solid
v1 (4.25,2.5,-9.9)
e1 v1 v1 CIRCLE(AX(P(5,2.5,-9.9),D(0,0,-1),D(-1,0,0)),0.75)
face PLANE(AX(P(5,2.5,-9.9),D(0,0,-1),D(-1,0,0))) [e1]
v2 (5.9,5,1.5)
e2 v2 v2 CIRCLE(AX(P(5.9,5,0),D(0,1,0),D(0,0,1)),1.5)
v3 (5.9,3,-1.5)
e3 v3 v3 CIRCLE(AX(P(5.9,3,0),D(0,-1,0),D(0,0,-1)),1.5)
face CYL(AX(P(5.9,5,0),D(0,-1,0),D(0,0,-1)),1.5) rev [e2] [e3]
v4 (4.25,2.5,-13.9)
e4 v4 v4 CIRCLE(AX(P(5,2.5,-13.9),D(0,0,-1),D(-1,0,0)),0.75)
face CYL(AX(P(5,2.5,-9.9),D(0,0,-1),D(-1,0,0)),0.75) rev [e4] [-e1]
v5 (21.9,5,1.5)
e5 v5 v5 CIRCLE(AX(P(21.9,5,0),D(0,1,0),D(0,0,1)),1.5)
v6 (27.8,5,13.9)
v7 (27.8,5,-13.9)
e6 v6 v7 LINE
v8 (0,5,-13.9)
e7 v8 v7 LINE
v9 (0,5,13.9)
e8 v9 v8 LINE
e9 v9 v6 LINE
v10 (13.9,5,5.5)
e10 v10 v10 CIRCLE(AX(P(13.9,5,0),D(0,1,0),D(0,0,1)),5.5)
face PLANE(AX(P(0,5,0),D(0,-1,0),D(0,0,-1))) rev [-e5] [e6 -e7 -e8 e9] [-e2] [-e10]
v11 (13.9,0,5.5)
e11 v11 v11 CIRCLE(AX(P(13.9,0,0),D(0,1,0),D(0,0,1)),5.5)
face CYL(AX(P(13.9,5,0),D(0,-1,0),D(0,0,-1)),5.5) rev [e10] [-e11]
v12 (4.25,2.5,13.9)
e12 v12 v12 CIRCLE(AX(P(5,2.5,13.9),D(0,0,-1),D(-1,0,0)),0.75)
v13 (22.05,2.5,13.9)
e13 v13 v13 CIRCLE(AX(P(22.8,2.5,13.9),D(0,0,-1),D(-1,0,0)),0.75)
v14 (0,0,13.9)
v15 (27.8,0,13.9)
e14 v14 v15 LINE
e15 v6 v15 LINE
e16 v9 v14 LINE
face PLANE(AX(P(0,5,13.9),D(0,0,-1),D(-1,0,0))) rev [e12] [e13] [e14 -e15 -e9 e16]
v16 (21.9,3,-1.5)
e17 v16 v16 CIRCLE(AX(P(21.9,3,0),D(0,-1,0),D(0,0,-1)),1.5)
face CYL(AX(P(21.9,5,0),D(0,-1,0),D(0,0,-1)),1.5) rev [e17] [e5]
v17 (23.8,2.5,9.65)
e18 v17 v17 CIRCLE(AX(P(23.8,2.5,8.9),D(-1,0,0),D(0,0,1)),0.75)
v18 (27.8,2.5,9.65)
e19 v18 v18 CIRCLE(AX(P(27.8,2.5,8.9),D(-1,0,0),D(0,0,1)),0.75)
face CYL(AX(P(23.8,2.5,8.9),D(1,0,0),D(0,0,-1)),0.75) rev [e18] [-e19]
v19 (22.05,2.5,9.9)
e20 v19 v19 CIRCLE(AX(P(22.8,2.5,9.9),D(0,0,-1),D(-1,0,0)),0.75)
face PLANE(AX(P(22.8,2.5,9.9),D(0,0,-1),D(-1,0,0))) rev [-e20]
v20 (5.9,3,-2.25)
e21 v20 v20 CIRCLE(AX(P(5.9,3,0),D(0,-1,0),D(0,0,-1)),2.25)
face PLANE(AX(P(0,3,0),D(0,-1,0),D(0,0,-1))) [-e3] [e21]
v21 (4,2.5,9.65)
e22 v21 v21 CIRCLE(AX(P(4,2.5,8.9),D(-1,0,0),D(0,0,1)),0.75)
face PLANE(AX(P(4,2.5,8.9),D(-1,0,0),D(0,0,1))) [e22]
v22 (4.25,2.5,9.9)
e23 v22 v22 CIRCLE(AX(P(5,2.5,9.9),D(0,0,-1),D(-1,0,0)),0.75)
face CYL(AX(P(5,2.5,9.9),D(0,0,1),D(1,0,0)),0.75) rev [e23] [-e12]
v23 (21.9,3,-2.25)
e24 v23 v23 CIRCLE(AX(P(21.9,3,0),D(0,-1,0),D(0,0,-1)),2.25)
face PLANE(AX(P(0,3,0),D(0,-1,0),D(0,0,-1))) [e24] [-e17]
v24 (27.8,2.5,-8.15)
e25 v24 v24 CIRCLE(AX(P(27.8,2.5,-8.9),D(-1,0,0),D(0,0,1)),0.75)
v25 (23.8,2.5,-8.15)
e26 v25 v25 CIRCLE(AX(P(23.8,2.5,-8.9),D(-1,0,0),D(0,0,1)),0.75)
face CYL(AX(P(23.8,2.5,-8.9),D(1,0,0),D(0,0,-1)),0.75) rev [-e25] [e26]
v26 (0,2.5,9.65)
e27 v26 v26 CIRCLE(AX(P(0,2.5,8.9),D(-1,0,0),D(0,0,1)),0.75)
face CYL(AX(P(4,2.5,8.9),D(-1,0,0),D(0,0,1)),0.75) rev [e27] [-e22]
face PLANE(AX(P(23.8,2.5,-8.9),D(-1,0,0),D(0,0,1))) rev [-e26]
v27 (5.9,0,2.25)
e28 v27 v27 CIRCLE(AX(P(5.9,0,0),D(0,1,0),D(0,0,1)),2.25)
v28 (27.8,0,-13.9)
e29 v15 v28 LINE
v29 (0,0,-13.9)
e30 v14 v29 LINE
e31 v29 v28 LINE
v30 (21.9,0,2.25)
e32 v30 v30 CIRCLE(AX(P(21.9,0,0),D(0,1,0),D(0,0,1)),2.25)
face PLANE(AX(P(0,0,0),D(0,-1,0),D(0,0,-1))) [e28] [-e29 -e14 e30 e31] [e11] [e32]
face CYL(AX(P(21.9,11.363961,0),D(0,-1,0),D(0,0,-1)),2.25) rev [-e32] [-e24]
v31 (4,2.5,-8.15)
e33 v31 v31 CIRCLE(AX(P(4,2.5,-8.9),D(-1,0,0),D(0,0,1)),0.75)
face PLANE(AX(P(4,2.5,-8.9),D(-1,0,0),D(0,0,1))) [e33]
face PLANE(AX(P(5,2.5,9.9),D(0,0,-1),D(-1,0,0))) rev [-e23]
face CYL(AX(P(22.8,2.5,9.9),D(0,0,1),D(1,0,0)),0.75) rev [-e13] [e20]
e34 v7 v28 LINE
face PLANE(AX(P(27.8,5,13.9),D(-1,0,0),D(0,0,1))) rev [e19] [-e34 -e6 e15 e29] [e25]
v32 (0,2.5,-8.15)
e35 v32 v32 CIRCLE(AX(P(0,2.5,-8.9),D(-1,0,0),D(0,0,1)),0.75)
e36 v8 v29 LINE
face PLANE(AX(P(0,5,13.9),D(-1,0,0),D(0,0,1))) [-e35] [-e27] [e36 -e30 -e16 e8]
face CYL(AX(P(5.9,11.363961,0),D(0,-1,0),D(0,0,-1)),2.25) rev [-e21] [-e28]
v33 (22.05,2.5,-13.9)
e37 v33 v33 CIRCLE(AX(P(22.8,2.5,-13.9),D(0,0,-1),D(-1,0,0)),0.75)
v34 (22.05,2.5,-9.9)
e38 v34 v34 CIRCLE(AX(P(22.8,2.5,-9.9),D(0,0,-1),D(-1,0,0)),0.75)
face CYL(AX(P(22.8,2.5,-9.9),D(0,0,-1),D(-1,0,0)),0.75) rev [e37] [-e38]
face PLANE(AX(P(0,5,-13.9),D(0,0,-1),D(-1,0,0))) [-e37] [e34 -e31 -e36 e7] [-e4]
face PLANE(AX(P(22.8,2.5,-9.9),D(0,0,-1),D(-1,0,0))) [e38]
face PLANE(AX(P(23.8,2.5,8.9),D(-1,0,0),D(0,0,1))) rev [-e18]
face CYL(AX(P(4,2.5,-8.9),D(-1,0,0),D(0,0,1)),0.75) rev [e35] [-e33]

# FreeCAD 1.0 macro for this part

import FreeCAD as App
import Part
import Sketcher

V = App.Vector
Q = App.Units.Quantity

doc = App.newDocument("Part")
body = doc.addObject("PartDesign::Body", "Body")

# Sketch on XZ plane
sketch1 = body.newObject("Sketcher::SketchObject", "Sketch")
sketch1.AttachmentSupport = (doc.getObject("XZ_Plane"), [""])
sketch1.MapMode = "FlatFace"
sketch1.addGeometry([
    Part.LineSegment(V(0, -13.9, 0), V(0, 13.9, 0)),  # 0
    Part.LineSegment(V(0, 13.9, 0), V(27.8, 13.9, 0)),  # 1
    Part.LineSegment(V(27.8, 13.9, 0), V(27.8, -13.9, 0)),  # 2
    Part.LineSegment(V(27.8, -13.9, 0), V(0, -13.9, 0)),  # 3
    Part.Circle(V(13.9, 0, 0), V(0, 0, 1), 5.5),  # 4
], False)
sketch1.addConstraint([
    Sketcher.Constraint("Coincident", 0, 2, 1, 1),
    Sketcher.Constraint("Coincident", 1, 2, 2, 1),
    Sketcher.Constraint("Coincident", 2, 2, 3, 1),
    Sketcher.Constraint("Coincident", 3, 2, 0, 1),
    Sketcher.Constraint("Vertical", 0),
    Sketcher.Constraint("Horizontal", 1),
    Sketcher.Constraint("Vertical", 2),
    Sketcher.Constraint("Horizontal", 3),
    Sketcher.Constraint("Symmetric", 0, 2, 3, 2, -1, 1),
    Sketcher.Constraint("PointOnObject", 4, 3, -1),
    Sketcher.Constraint("Equal", 3, 0),
    Sketcher.Constraint("Diameter", 4, Q("11 mm")),
    Sketcher.Constraint("DistanceX", 1, 1, 1, 2, Q("27.8 mm")),
    Sketcher.Constraint("DistanceX", -1, 1, 4, 3, Q("13.9 mm")),
])
pad1 = body.newObject("PartDesign::Pad", "Pad")
pad1.Profile = sketch1
pad1.Length = 5
pad1.Reversed = True

# Sketch on XZ plane
sketch2 = body.newObject("Sketcher::SketchObject", "Sketch001")
sketch2.AttachmentSupport = (doc.getObject("XZ_Plane"), [""])
sketch2.MapMode = "FlatFace"
sketch2.addGeometry([
    Part.Circle(V(5.9, 0, 0), V(0, 0, 1), 1.5),
    Part.Circle(V(21.9, 0, 0), V(0, 0, 1), 1.5),
], False)
sketch2.addConstraint([
    Sketcher.Constraint("Equal", 0, 1),
    Sketcher.Constraint("PointOnObject", 0, 3, -1),
    Sketcher.Constraint("PointOnObject", 1, 3, -1),
    Sketcher.Constraint("Diameter", 0, Q("3 mm")),
    Sketcher.Constraint("DistanceX", 0, 3, 1, 3, Q("16 mm")),
    Sketcher.Constraint("DistanceX", -1, 1, 0, 3, Q("5.9 mm")),
])
pocket1 = body.newObject("PartDesign::Pocket", "Pocket")
pocket1.Profile = sketch2
pocket1.Type = "ThroughAll"

# Sketch on XZ plane
sketch3 = body.newObject("Sketcher::SketchObject", "Sketch002")
sketch3.AttachmentSupport = (doc.getObject("XZ_Plane"), [""])
sketch3.MapMode = "FlatFace"
sketch3.addGeometry([
    Part.Circle(V(5.9, 0, 0), V(0, 0, 1), 2.25),
    Part.Circle(V(21.9, 0, 0), V(0, 0, 1), 2.25),
], False)
sketch3.addConstraint([
    Sketcher.Constraint("Equal", 0, 1),
    Sketcher.Constraint("PointOnObject", 0, 3, -1),
    Sketcher.Constraint("PointOnObject", 1, 3, -1),
    Sketcher.Constraint("Diameter", 0, Q("4.5 mm")),
    Sketcher.Constraint("DistanceX", 0, 3, 1, 3, Q("16 mm")),
    Sketcher.Constraint("DistanceX", -1, 1, 0, 3, Q("5.9 mm")),
])
pocket2 = body.newObject("PartDesign::Pocket", "Pocket001")
pocket2.Profile = sketch3
pocket2.Length = 3

# Sketch on XY plane
sketch4 = body.newObject("Sketcher::SketchObject", "Sketch003")
sketch4.AttachmentSupport = (doc.getObject("XY_Plane"), [""])
sketch4.MapMode = "FlatFace"
sketch4.AttachmentOffset = App.Placement(V(0, 0, -13.9), App.Rotation())
sketch4.addGeometry([
    Part.Circle(V(22.8, 2.5, 0), V(0, 0, 1), 0.75),
    Part.Circle(V(5, 2.5, 0), V(0, 0, 1), 0.75),
], False)
sketch4.addConstraint([
    Sketcher.Constraint("Equal", 0, 1),
    Sketcher.Constraint("Horizontal", 0, 3, 1, 3),
    Sketcher.Constraint("Diameter", 0, Q("1.5 mm")),
    Sketcher.Constraint("DistanceX", -1, 1, 1, 3, Q("5 mm")),
    Sketcher.Constraint("DistanceX", -1, 1, 0, 3, Q("22.8 mm")),
    Sketcher.Constraint("DistanceY", -1, 1, 0, 3, Q("2.5 mm")),
])
pocket3 = body.newObject("PartDesign::Pocket", "Pocket002")
pocket3.Profile = sketch4
pocket3.Length = 4
pocket3.Reversed = True

# Sketch on XY plane
sketch5 = body.newObject("Sketcher::SketchObject", "Sketch004")
sketch5.AttachmentSupport = (doc.getObject("XY_Plane"), [""])
sketch5.MapMode = "FlatFace"
sketch5.AttachmentOffset = App.Placement(V(0, 0, 9.9), App.Rotation())
sketch5.addGeometry([
    Part.Circle(V(22.8, 2.5, 0), V(0, 0, 1), 0.75),
    Part.Circle(V(5, 2.5, 0), V(0, 0, 1), 0.75),
], False)
sketch5.addConstraint([
    Sketcher.Constraint("Equal", 0, 1),
    Sketcher.Constraint("Horizontal", 0, 3, 1, 3),
    Sketcher.Constraint("Diameter", 0, Q("1.5 mm")),
    Sketcher.Constraint("DistanceX", -1, 1, 1, 3, Q("5 mm")),
    Sketcher.Constraint("DistanceX", -1, 1, 0, 3, Q("22.8 mm")),
    Sketcher.Constraint("DistanceY", -1, 1, 0, 3, Q("2.5 mm")),
])
pocket4 = body.newObject("PartDesign::Pocket", "Pocket003")
pocket4.Profile = sketch5
pocket4.Length = 4
pocket4.Reversed = True

# Sketch on YZ plane
sketch6 = body.newObject("Sketcher::SketchObject", "Sketch005")
sketch6.AttachmentSupport = (doc.getObject("YZ_Plane"), [""])
sketch6.MapMode = "FlatFace"
sketch6.addGeometry([
    Part.Circle(V(2.5, -8.9, 0), V(0, 0, 1), 0.75),
    Part.Circle(V(2.5, 8.9, 0), V(0, 0, 1), 0.75),
], False)
sketch6.addConstraint([
    Sketcher.Constraint("Equal", 0, 1),
    Sketcher.Constraint("Symmetric", 0, 3, 1, 3, -1),
    Sketcher.Constraint("Diameter", 0, Q("1.5 mm")),
    Sketcher.Constraint("DistanceX", -1, 1, 0, 3, Q("2.5 mm")),
    Sketcher.Constraint("DistanceY", 0, 3, -1, 1, Q("8.9 mm")),
])
pocket5 = body.newObject("PartDesign::Pocket", "Pocket004")
pocket5.Profile = sketch6
pocket5.Length = 4
pocket5.Reversed = True

# Sketch on YZ plane
sketch7 = body.newObject("Sketcher::SketchObject", "Sketch006")
sketch7.AttachmentSupport = (doc.getObject("YZ_Plane"), [""])
sketch7.MapMode = "FlatFace"
sketch7.AttachmentOffset = App.Placement(V(0, 0, 23.8), App.Rotation())
sketch7.addGeometry([
    Part.Circle(V(2.5, -8.9, 0), V(0, 0, 1), 0.75),
    Part.Circle(V(2.5, 8.9, 0), V(0, 0, 1), 0.75),
], False)
sketch7.addConstraint([
    Sketcher.Constraint("Equal", 0, 1),
    Sketcher.Constraint("Symmetric", 0, 3, 1, 3, -1),
    Sketcher.Constraint("Diameter", 0, Q("1.5 mm")),
    Sketcher.Constraint("DistanceX", -1, 1, 0, 3, Q("2.5 mm")),
    Sketcher.Constraint("DistanceY", 0, 3, -1, 1, Q("8.9 mm")),
])
pocket6 = body.newObject("PartDesign::Pocket", "Pocket005")
pocket6.Profile = sketch7
pocket6.Length = 4
pocket6.Reversed = True

doc.recompute()
